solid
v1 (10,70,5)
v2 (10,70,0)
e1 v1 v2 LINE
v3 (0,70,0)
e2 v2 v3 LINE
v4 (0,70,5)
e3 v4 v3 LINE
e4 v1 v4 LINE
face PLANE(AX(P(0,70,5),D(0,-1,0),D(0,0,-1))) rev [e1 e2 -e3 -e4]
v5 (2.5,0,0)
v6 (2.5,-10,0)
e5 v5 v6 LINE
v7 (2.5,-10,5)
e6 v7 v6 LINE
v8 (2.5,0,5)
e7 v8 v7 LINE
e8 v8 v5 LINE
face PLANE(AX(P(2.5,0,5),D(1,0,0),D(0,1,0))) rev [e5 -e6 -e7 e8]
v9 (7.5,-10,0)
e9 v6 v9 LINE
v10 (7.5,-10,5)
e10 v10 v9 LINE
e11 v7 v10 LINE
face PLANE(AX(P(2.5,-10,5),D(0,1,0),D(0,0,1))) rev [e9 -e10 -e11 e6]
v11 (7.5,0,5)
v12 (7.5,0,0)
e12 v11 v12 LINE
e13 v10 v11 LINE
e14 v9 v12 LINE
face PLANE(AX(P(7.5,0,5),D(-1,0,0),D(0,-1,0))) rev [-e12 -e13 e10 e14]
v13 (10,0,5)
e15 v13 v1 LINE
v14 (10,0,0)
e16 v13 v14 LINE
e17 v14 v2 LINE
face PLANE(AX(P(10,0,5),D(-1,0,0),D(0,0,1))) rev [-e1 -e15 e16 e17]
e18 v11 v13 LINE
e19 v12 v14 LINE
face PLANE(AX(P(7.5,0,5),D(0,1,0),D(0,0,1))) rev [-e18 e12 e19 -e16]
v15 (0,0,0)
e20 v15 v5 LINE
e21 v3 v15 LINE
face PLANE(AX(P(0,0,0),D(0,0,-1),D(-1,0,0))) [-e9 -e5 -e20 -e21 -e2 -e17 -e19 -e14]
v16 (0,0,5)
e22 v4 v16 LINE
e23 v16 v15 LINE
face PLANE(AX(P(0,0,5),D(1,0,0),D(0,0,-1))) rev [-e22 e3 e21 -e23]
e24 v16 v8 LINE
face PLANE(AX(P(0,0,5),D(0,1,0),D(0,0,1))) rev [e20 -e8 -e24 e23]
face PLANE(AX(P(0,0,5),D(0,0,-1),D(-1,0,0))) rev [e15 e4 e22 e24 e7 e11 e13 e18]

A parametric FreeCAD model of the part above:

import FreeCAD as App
import Part
import Sketcher

V = App.Vector
Q = App.Units.Quantity

doc = App.newDocument("Part")
body = doc.addObject("PartDesign::Body", "Body")

# Sketch on XY plane
sketch1 = body.newObject("Sketcher::SketchObject", "Sketch")
sketch1.AttachmentSupport = (doc.getObject("XY_Plane"), [""])
sketch1.MapMode = "FlatFace"
sketch1.addGeometry([
    Part.LineSegment(V(7.5, 0, 0), V(10, 0, 0)),  # 0
    Part.LineSegment(V(10, 0, 0), V(10, 70, 0)),  # 1
    Part.LineSegment(V(10, 70, 0), V(0, 70, 0)),  # 2
    Part.LineSegment(V(0, 70, 0), V(0, 0, 0)),  # 3
    Part.LineSegment(V(0, 0, 0), V(2.5, 0, 0)),  # 4
    Part.LineSegment(V(2.5, 0, 0), V(2.5, -10, 0)),  # 5
    Part.LineSegment(V(2.5, -10, 0), V(7.5, -10, 0)),  # 6
    Part.LineSegment(V(7.5, -10, 0), V(7.5, 0, 0)),  # 7
], False)
sketch1.addConstraint([
    Sketcher.Constraint("Coincident", 0, 2, 1, 1),
    Sketcher.Constraint("Coincident", 1, 2, 2, 1),
    Sketcher.Constraint("Coincident", 2, 2, 3, 1),
    Sketcher.Constraint("Coincident", 3, 2, 4, 1),
    Sketcher.Constraint("Coincident", 4, 2, 5, 1),
    Sketcher.Constraint("Coincident", 5, 2, 6, 1),
    Sketcher.Constraint("Coincident", 6, 2, 7, 1),
    Sketcher.Constraint("Coincident", 7, 2, 0, 1),
    Sketcher.Constraint("Horizontal", 0),
    Sketcher.Constraint("Vertical", 1),
    Sketcher.Constraint("Horizontal", 2),
    Sketcher.Constraint("Vertical", 3),
    Sketcher.Constraint("Horizontal", 4),
    Sketcher.Constraint("Vertical", 5),
    Sketcher.Constraint("Horizontal", 6),
    Sketcher.Constraint("Vertical", 7),
    Sketcher.Constraint("Coincident", 3, 2, -1, 1),
    Sketcher.Constraint("PointOnObject", 0, 2, -1),
    Sketcher.Constraint("Equal", 0, 4),
    Sketcher.Constraint("Equal", 2, 5),
    Sketcher.Constraint("DistanceX", 2, 2, 2, 1, Q("10 mm")),
    Sketcher.Constraint("DistanceX", 6, 1, 6, 2, Q("5 mm")),
    Sketcher.Constraint("DistanceY", 1, 1, 1, 2, Q("70 mm")),
])
pad1 = body.newObject("PartDesign::Pad", "Pad")
pad1.Profile = sketch1
pad1.Length = 5

doc.recompute()
